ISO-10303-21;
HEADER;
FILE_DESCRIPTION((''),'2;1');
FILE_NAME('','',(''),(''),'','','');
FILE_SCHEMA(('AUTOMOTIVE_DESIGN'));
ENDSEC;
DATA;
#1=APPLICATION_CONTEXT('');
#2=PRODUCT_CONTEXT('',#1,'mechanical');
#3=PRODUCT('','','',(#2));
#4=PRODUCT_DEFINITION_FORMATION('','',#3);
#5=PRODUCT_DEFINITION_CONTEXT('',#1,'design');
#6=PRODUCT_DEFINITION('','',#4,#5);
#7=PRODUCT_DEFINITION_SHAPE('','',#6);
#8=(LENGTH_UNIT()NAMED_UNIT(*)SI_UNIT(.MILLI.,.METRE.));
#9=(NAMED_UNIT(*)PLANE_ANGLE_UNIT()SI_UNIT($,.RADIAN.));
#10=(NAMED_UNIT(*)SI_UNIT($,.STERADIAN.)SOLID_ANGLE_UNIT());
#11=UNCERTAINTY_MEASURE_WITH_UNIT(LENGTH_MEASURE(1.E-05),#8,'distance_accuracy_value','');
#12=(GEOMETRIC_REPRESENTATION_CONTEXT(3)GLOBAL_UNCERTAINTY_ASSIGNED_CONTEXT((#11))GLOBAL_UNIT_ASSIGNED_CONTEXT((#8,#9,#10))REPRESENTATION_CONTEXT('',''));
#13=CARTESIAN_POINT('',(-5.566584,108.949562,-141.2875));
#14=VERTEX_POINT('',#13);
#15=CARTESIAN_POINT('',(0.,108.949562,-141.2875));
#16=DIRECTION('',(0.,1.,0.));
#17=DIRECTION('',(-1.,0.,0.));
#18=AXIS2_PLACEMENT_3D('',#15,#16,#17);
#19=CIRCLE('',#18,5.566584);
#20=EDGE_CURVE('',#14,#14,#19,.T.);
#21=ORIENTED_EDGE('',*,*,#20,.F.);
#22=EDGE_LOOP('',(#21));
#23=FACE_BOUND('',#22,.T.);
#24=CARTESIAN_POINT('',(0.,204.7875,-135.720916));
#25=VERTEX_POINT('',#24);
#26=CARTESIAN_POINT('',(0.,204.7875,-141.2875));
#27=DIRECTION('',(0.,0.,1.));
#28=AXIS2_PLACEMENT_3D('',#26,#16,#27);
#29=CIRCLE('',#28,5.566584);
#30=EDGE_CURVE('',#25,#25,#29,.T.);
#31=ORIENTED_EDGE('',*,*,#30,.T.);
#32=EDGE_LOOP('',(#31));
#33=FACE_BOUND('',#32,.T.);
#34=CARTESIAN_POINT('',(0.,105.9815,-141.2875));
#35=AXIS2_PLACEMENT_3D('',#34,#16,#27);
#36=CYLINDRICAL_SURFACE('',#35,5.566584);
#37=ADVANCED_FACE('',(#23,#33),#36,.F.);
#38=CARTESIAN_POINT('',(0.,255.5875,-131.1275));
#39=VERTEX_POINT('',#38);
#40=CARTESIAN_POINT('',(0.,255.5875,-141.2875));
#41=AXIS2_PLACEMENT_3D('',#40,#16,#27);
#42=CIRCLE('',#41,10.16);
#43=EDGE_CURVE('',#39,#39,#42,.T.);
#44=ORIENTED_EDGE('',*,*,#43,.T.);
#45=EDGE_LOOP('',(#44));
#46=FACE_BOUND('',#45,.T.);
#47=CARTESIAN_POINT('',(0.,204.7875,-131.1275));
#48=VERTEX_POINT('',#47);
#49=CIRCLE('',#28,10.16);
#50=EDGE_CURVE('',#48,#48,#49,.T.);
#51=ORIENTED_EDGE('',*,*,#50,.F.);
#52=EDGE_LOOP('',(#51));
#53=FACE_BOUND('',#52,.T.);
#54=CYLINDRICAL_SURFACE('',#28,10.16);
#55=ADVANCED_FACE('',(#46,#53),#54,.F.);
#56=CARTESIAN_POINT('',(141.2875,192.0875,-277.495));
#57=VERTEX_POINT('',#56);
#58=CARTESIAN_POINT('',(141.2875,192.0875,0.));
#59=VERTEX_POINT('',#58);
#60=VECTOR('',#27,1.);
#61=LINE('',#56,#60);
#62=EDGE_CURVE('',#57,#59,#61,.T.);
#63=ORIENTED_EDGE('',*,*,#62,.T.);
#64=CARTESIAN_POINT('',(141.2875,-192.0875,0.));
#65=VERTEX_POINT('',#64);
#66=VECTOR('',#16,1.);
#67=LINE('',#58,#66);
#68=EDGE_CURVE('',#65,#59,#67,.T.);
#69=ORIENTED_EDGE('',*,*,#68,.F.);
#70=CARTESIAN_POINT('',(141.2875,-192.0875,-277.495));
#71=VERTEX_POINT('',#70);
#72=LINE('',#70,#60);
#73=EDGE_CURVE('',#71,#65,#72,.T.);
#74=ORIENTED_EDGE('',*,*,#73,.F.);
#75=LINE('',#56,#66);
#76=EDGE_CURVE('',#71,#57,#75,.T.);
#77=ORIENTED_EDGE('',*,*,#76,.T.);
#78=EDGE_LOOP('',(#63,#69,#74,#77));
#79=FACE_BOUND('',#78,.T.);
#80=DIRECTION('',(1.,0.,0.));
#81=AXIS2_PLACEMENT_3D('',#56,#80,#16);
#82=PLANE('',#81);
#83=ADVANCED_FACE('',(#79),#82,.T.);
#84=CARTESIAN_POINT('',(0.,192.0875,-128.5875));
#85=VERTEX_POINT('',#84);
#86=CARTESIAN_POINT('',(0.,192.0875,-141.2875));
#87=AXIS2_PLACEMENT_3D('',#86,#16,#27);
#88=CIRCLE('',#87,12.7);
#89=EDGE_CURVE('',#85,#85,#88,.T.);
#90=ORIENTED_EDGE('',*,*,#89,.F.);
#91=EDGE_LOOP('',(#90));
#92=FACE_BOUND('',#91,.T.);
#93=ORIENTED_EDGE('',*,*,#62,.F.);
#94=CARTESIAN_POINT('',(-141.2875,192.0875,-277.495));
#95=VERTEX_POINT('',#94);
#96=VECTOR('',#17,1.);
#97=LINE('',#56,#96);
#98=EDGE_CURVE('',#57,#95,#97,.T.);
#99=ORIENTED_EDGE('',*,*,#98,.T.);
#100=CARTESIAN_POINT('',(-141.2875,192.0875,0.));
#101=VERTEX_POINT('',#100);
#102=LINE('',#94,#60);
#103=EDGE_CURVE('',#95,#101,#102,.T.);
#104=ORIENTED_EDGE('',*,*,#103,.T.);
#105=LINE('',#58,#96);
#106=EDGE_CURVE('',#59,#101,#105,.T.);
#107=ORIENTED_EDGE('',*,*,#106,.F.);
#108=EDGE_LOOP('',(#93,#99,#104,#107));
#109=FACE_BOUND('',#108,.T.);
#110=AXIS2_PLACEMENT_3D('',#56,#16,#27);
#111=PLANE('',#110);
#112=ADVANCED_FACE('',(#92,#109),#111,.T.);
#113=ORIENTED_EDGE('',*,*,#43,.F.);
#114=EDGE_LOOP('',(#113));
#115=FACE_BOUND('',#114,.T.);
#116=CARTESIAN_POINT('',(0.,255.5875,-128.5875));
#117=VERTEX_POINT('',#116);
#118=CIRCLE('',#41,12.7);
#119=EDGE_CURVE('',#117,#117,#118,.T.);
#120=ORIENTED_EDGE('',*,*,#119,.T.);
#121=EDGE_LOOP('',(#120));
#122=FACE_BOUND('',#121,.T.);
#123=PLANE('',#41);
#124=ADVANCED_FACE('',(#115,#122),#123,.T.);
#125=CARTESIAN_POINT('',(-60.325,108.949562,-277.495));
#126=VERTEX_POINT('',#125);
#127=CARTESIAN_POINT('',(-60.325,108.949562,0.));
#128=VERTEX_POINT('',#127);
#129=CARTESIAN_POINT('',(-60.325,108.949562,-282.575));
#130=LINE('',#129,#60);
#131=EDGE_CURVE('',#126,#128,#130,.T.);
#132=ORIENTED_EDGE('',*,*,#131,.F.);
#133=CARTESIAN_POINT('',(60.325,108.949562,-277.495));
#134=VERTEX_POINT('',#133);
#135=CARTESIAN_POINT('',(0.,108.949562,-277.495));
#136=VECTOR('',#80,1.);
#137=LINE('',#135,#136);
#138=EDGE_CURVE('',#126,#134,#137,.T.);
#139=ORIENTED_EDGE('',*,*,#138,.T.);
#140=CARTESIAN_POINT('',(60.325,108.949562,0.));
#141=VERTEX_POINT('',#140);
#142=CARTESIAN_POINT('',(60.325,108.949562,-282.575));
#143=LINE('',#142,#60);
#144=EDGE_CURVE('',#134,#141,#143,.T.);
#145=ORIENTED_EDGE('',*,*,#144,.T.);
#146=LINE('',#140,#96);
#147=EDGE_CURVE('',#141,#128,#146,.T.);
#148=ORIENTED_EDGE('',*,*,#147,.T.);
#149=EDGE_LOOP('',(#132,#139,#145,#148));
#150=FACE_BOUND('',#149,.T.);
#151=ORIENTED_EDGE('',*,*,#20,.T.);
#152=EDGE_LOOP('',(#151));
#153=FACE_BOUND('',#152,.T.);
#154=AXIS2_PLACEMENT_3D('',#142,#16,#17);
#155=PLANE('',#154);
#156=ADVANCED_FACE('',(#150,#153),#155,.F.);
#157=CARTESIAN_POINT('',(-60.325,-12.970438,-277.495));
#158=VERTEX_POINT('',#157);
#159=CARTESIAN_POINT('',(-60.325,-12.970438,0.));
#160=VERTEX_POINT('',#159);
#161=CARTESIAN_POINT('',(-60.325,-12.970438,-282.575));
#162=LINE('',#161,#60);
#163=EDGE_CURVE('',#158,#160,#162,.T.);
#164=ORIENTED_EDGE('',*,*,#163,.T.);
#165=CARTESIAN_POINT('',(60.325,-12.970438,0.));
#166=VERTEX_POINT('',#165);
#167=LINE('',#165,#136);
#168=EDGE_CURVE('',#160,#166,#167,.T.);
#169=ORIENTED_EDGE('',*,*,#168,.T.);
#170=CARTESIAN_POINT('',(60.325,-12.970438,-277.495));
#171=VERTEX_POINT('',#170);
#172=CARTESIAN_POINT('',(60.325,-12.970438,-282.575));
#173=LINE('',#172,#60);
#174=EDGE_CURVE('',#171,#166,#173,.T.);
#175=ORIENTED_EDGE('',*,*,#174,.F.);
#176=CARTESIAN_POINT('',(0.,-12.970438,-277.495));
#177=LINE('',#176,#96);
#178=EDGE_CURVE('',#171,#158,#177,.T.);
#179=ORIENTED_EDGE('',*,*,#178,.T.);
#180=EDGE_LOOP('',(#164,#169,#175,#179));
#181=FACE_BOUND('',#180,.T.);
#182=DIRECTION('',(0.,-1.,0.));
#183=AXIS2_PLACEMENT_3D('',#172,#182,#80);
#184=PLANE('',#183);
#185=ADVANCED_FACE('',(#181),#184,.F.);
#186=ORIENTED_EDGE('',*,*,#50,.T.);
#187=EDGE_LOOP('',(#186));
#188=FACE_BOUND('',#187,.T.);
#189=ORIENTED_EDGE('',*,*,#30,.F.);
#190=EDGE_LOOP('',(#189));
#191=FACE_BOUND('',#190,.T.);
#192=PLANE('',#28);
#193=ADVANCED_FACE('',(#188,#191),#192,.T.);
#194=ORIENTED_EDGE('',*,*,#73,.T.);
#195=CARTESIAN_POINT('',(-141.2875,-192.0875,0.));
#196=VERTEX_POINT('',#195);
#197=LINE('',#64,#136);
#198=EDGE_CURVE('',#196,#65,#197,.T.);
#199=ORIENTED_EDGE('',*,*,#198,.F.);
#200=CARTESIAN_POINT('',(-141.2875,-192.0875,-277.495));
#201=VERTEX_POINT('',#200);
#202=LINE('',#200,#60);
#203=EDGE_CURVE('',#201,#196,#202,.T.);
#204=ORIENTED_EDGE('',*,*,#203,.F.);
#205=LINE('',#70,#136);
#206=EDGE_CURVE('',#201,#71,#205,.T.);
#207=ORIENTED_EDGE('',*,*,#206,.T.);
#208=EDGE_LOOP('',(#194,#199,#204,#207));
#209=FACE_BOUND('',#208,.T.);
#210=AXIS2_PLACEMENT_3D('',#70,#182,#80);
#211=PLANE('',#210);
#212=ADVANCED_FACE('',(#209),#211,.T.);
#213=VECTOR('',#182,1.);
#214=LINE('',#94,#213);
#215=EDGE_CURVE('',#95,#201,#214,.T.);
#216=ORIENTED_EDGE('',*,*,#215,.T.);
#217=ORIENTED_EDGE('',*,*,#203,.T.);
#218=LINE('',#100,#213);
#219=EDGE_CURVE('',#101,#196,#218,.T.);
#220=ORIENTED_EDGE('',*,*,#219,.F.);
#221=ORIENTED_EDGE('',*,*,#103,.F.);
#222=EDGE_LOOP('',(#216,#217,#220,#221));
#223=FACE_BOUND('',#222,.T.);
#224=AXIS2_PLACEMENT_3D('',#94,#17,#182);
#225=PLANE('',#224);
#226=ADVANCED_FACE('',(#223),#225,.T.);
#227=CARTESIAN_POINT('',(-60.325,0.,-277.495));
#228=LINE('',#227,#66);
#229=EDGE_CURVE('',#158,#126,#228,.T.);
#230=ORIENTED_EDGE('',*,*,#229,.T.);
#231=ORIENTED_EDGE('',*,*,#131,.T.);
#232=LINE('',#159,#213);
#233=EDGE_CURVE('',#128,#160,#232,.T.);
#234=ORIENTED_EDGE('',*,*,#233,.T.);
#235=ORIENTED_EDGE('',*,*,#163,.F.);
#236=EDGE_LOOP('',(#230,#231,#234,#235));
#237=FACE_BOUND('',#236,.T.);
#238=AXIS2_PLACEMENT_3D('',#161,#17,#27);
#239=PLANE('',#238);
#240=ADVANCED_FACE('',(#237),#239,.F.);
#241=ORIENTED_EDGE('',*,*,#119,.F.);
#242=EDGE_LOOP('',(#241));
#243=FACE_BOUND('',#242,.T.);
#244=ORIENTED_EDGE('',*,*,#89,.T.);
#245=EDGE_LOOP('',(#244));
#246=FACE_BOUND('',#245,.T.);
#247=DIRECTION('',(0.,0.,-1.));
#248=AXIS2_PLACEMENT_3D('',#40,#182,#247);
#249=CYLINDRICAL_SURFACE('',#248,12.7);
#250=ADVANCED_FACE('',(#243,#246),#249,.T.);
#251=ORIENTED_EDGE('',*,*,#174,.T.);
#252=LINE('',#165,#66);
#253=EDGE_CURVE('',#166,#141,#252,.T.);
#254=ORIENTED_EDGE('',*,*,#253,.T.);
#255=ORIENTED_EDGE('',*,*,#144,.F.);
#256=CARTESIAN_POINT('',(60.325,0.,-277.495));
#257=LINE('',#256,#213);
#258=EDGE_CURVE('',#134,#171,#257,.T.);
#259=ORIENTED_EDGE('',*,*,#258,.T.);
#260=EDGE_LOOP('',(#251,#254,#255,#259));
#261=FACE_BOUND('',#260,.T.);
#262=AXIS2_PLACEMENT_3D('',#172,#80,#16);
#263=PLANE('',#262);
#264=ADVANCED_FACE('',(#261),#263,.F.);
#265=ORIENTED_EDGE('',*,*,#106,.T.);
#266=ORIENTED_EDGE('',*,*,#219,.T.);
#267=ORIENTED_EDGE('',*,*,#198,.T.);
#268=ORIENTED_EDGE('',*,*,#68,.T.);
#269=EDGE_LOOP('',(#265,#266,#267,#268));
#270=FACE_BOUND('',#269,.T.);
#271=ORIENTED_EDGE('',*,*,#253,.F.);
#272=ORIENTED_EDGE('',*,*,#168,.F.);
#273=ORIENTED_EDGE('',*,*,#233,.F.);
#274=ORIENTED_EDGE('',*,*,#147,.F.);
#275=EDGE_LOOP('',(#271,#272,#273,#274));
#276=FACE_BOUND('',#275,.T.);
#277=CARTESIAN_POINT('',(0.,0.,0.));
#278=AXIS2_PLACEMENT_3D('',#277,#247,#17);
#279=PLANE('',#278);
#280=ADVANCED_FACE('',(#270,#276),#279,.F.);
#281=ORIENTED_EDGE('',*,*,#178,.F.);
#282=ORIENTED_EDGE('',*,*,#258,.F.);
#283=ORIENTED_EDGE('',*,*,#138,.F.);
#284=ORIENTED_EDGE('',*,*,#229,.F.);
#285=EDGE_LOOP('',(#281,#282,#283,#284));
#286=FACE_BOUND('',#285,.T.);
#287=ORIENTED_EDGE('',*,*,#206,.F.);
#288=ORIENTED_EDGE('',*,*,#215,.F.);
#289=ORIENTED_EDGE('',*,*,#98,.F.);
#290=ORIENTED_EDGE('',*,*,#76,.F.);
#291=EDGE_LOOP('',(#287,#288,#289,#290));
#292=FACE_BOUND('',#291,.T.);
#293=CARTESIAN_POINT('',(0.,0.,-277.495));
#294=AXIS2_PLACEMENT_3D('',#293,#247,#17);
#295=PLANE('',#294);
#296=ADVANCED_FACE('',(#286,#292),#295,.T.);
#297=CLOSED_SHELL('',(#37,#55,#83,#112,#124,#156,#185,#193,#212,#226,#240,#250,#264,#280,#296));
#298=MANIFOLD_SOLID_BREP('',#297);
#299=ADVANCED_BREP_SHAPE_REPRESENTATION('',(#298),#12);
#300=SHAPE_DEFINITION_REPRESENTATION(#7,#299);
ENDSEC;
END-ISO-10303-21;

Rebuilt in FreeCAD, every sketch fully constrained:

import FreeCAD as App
import Part
import Sketcher
Q = App.Units.Quantity

doc = App.newDocument("Part")
body = doc.addObject("PartDesign::Body", "Body")

sketch1 = doc.addObject("Sketcher::SketchObject", "Sketch")
body.addObject(sketch1)
sketch1.AttachmentSupport = (doc.XY_Plane, [""])
sketch1.MapMode = "FlatFace"
sketch1.addGeometry(Part.LineSegment(App.Vector(-141.2875, 192.0875, 0), App.Vector(-141.2875, -192.0875, 0)), False)
sketch1.addGeometry(Part.LineSegment(App.Vector(-141.2875, -192.0875, 0), App.Vector(141.2875, -192.0875, 0)), False)
sketch1.addGeometry(Part.LineSegment(App.Vector(141.2875, -192.0875, 0), App.Vector(141.2875, 192.0875, 0)), False)
sketch1.addGeometry(Part.LineSegment(App.Vector(141.2875, 192.0875, 0), App.Vector(-141.2875, 192.0875, 0)), False)
sketch1.addConstraint(Sketcher.Constraint("Coincident", 0, 2, 1, 1))
sketch1.addConstraint(Sketcher.Constraint("Coincident", 1, 2, 2, 1))
sketch1.addConstraint(Sketcher.Constraint("Coincident", 2, 2, 3, 1))
sketch1.addConstraint(Sketcher.Constraint("Coincident", 3, 2, 0, 1))
sketch1.addConstraint(Sketcher.Constraint("Vertical", 0))
sketch1.addConstraint(Sketcher.Constraint("Horizontal", 1))
sketch1.addConstraint(Sketcher.Constraint("Vertical", 2))
sketch1.addConstraint(Sketcher.Constraint("Horizontal", 3))
sketch1.addConstraint(Sketcher.Constraint("Symmetric", 0, 2, 2, 2, -1, 1))
sketch1.addConstraint(Sketcher.Constraint("DistanceX", 1, 1, 1, 2, Q("11.125 in")))
sketch1.addConstraint(Sketcher.Constraint("DistanceY", 0, 2, 0, 1, Q("15.125 in")))
pad1 = doc.addObject("PartDesign::Pad", "Pad")
body.addObject(pad1)
pad1.Profile = sketch1
pad1.Length = Q("10.925 in")
pad1.Reversed = True

sketch2 = doc.addObject("Sketcher::SketchObject", "Sketch001")
body.addObject(sketch2)
sketch2.AttachmentSupport = (doc.XY_Plane, [""])
sketch2.MapMode = "FlatFace"
sketch2.addGeometry(Part.LineSegment(App.Vector(-60.325, 108.949562, 0), App.Vector(-60.325, -12.970438, 0)), False)
sketch2.addGeometry(Part.LineSegment(App.Vector(-60.325, -12.970438, 0), App.Vector(60.325, -12.970438, 0)), False)
sketch2.addGeometry(Part.LineSegment(App.Vector(60.325, -12.970438, 0), App.Vector(60.325, 108.949562, 0)), False)
sketch2.addGeometry(Part.LineSegment(App.Vector(60.325, 108.949562, 0), App.Vector(-60.325, 108.949562, 0)), False)
sketch2.addConstraint(Sketcher.Constraint("Coincident", 0, 2, 1, 1))
sketch2.addConstraint(Sketcher.Constraint("Coincident", 1, 2, 2, 1))
sketch2.addConstraint(Sketcher.Constraint("Coincident", 2, 2, 3, 1))
sketch2.addConstraint(Sketcher.Constraint("Coincident", 3, 2, 0, 1))
sketch2.addConstraint(Sketcher.Constraint("Vertical", 0))
sketch2.addConstraint(Sketcher.Constraint("Horizontal", 1))
sketch2.addConstraint(Sketcher.Constraint("Vertical", 2))
sketch2.addConstraint(Sketcher.Constraint("Horizontal", 3))
sketch2.addConstraint(Sketcher.Constraint("DistanceY", 0, 2, 0, 1, Q("4.8 in")))
sketch2.addConstraint(Sketcher.Constraint("DistanceX", 1, 1, 1, 2, Q("4.75 in")))
sketch2.addConstraint(Sketcher.Constraint("DistanceX", 0, 2, -1, 1, Q("2.375 in")))
sketch2.addConstraint(Sketcher.Constraint("DistanceY", 0, 2, -1, 1, 12.970438))
pocket1 = doc.addObject("PartDesign::Pocket", "Pocket")
body.addObject(pocket1)
pocket1.Profile = sketch2
pocket1.Length = Q("11.125 in")

sketch3 = doc.addObject("Sketcher::SketchObject", "Sketch002")
body.addObject(sketch3)
sketch3.AttachmentSupport = (doc.XZ_Plane, [""])
sketch3.MapMode = "FlatFace"
sketch3.AttachmentOffset = App.Placement(App.Vector(0, 0, -7.5625 * 25.4), App.Rotation())
sketch3.addGeometry(Part.Circle(App.Vector(0, -141.2875, 0), App.Vector(0, 0, 1), 12.7), False)
sketch3.addConstraint(Sketcher.Constraint("PointOnObject", 0, 3, -2))
sketch3.addConstraint(Sketcher.Constraint("Diameter", 0, Q("1 in")))
sketch3.addConstraint(Sketcher.Constraint("DistanceY", 0, 3, -1, 1, Q("5.5625 in")))
pad2 = doc.addObject("PartDesign::Pad", "Pad001")
body.addObject(pad2)
pad2.Profile = sketch3
pad2.Length = Q("2.5 in")
pad2.Reversed = True

sketch4 = doc.addObject("Sketcher::SketchObject", "Sketch003")
body.addObject(sketch4)
sketch4.AttachmentSupport = (doc.XZ_Plane, [""])
sketch4.MapMode = "FlatFace"
sketch4.AttachmentOffset = App.Placement(App.Vector(0, 0, -10.0625 * 25.4), App.Rotation())
sketch4.addGeometry(Part.Circle(App.Vector(0, -141.2875, 0), App.Vector(0, 0, 1), 10.16), False)
sketch4.addConstraint(Sketcher.Constraint("PointOnObject", 0, 3, -2))
sketch4.addConstraint(Sketcher.Constraint("Diameter", 0, Q("0.8 in")))
sketch4.addConstraint(Sketcher.Constraint("DistanceY", 0, 3, -1, 1, Q("5.5625 in")))
pocket2 = doc.addObject("PartDesign::Pocket", "Pocket001")
body.addObject(pocket2)
pocket2.Profile = sketch4
pocket2.Length = Q("2 in")
pocket2.Reversed = True

sketch5 = doc.addObject("Sketcher::SketchObject", "Sketch004")
body.addObject(sketch5)
sketch5.AttachmentSupport = (doc.XZ_Plane, [""])
sketch5.MapMode = "FlatFace"
sketch5.AttachmentOffset = App.Placement(App.Vector(0, 0, -8.0625 * 25.4), App.Rotation())
sketch5.addGeometry(Part.Circle(App.Vector(0, -141.2875, 0), App.Vector(0, 0, 1), 5.566584), False)
sketch5.addConstraint(Sketcher.Constraint("PointOnObject", 0, 3, -2))
sketch5.addConstraint(Sketcher.Constraint("Diameter", 0, 11.133168))
sketch5.addConstraint(Sketcher.Constraint("DistanceY", 0, 3, -1, 1, Q("5.5625 in")))
pocket3 = doc.addObject("PartDesign::Pocket", "Pocket002")
body.addObject(pocket3)
pocket3.Profile = sketch5
pocket3.Length = Q("3.89 in")
pocket3.Reversed = True

doc.recompute()
